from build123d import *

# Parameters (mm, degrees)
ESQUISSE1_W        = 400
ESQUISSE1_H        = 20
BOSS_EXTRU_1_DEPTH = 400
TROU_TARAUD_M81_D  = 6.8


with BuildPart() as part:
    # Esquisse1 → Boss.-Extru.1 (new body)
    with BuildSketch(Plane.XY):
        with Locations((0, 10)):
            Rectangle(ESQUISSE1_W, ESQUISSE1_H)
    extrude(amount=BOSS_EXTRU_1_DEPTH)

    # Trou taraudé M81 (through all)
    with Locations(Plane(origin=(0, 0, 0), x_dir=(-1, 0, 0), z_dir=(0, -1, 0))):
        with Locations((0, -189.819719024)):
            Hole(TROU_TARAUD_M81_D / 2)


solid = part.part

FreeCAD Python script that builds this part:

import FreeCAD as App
import Part
import Sketcher
Q = App.Units.Quantity

doc = App.newDocument("Part")
body = doc.addObject("PartDesign::Body", "Body")

sketch1 = body.newObject("Sketcher::SketchObject", "Sketch")
sketch1.AttachmentSupport = (doc.getObject("XY_Plane"), [""])
sketch1.MapMode = "FlatFace"
sketch1.addGeometry([
    Part.LineSegment(App.Vector(-200, 20, 0), App.Vector(-200, 0, 0)),
    Part.LineSegment(App.Vector(-200, 0, 0), App.Vector(200, 0, 0)),
    Part.LineSegment(App.Vector(200, 0, 0), App.Vector(200, 20, 0)),
    Part.LineSegment(App.Vector(200, 20, 0), App.Vector(-200, 20, 0)),
], False)
sketch1.addConstraint([
    Sketcher.Constraint("Coincident", 0, 2, 1, 1),
    Sketcher.Constraint("Coincident", 1, 2, 2, 1),
    Sketcher.Constraint("Coincident", 2, 2, 3, 1),
    Sketcher.Constraint("Coincident", 3, 2, 0, 1),
    Sketcher.Constraint("Vertical", 0),
    Sketcher.Constraint("Horizontal", 1),
    Sketcher.Constraint("Vertical", 2),
    Sketcher.Constraint("Horizontal", 3),
    Sketcher.Constraint("Symmetric", 0, 2, 1, 2, -1, 1),
    Sketcher.Constraint("DistanceX", 1, 1, 1, 2, Q("400 mm")),
    Sketcher.Constraint("DistanceY", 0, 2, 0, 1, Q("20 mm")),
])
pad1 = body.newObject("PartDesign::Pad", "Pad")
pad1.Profile = sketch1
pad1.Length = 400

sketch2 = body.newObject("Sketcher::SketchObject", "Sketch001")
sketch2.AttachmentSupport = (doc.getObject("XZ_Plane"), [""])
sketch2.MapMode = "FlatFace"
sketch2.addGeometry(Part.Circle(App.Vector(0, 189.8, 0), App.Vector(0, 0, 1), 3.4), False)
sketch2.addConstraint([
    Sketcher.Constraint("PointOnObject", 0, 3, -2),
    Sketcher.Constraint("Diameter", 0, Q("6.8 mm")),
    Sketcher.Constraint("DistanceY", -1, 1, 0, 3, Q("189.819719 mm")),
])
doc.recompute()
hole = body.newObject("PartDesign::Hole", "Hole")
hole.Profile = sketch2
hole.ThreadType = "None"
hole.Diameter = 6.8
hole.DepthType = "ThroughAll"

doc.recompute()
